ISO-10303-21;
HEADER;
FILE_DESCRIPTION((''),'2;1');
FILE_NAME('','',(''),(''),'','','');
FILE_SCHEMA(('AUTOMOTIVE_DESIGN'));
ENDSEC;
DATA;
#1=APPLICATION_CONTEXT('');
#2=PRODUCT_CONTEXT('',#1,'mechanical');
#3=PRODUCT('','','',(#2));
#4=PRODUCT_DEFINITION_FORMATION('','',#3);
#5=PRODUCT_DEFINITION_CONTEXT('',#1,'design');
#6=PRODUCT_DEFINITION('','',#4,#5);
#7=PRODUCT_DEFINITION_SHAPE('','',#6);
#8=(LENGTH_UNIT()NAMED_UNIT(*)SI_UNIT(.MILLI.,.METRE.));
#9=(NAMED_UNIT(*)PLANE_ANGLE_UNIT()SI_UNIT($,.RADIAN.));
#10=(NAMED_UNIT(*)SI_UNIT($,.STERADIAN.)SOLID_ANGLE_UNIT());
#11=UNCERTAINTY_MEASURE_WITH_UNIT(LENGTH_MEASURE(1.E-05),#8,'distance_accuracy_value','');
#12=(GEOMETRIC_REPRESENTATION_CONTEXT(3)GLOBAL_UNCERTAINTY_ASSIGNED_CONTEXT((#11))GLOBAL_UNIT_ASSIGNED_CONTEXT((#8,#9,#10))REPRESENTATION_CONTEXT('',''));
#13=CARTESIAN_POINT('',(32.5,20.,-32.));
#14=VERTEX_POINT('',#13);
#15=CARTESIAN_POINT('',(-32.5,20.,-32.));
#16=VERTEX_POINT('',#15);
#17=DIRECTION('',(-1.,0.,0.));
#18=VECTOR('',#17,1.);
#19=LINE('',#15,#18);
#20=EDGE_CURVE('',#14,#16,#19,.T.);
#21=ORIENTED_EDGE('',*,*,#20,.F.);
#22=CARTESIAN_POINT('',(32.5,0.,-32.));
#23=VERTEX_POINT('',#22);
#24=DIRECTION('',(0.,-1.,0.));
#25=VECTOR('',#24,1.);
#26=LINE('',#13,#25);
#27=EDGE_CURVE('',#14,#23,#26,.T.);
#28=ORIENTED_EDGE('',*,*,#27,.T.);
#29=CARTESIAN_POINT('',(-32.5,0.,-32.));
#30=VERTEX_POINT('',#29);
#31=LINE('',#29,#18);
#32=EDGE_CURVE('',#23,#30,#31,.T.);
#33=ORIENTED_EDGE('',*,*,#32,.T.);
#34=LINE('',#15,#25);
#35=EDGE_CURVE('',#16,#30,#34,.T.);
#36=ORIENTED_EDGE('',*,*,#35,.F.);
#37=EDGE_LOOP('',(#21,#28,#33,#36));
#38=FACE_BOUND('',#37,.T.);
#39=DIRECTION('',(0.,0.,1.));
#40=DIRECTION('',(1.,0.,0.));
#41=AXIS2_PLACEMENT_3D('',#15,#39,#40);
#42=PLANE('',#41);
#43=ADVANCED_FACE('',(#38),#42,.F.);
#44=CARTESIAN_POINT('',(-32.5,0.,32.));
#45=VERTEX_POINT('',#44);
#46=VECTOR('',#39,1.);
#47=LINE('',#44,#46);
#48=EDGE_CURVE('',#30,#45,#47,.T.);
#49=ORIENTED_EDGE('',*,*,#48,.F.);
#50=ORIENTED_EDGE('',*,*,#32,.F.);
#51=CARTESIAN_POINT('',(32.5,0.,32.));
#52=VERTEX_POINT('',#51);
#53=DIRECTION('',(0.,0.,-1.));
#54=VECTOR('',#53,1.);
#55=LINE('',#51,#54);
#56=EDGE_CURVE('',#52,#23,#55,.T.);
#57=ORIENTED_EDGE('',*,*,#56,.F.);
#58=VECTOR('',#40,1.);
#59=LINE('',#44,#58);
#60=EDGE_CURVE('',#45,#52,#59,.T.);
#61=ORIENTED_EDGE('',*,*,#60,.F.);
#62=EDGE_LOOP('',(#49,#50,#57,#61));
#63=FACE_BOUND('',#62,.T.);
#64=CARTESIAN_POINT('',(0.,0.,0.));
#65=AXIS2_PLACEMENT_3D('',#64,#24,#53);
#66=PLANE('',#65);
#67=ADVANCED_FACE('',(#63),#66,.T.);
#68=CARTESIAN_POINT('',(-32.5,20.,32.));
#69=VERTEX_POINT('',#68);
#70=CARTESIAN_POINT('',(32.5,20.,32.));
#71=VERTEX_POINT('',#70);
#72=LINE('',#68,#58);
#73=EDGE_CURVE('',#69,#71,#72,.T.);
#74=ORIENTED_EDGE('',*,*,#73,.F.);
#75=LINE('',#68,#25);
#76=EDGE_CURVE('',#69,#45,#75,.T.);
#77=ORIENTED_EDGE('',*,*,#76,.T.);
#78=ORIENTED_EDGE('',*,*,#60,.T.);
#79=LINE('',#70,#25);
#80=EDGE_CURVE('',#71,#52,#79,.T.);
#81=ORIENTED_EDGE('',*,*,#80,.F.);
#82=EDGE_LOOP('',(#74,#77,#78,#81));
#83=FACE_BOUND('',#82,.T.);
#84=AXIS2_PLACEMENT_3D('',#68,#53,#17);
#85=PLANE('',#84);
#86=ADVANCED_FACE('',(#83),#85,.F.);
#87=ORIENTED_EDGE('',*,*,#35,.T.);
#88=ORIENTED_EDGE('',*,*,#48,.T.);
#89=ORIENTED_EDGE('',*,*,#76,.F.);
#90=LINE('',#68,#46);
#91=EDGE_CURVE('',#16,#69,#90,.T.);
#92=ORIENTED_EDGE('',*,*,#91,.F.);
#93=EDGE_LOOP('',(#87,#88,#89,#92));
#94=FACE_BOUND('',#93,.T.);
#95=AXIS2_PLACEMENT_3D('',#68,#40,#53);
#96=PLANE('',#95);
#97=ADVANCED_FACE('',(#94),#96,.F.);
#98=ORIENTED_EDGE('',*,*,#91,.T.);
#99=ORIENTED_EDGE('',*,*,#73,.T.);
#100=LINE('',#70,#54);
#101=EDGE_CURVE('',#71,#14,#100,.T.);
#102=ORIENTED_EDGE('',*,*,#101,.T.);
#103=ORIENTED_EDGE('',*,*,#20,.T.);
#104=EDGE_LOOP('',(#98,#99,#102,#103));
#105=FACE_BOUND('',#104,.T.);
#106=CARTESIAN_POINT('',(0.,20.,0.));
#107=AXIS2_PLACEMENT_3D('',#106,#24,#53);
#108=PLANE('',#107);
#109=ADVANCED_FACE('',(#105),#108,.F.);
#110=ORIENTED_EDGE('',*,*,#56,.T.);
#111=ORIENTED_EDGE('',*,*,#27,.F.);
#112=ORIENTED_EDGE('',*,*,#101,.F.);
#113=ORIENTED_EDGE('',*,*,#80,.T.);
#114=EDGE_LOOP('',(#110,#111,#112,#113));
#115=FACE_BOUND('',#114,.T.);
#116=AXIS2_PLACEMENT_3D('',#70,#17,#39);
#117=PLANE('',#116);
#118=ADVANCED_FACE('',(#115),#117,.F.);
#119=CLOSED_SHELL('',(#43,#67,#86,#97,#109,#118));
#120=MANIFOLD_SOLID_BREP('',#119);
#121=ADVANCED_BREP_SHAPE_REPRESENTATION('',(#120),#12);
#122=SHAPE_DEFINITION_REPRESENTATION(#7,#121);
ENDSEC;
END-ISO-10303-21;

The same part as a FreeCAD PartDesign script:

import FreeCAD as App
import Part
import Sketcher

V = App.Vector
Q = App.Units.Quantity


def add_polygon(sketch, points):
    """Adds a closed chain of lines whose ends are joined by coincident constraints."""
    first, n = sketch.GeometryCount, len(points)
    for a, b in zip(points, points[1:] + points[:1]):
        sketch.addGeometry(Part.LineSegment(App.Vector(*a, 0), App.Vector(*b, 0)), False)
    for i in range(n):
        sketch.addConstraint(Sketcher.Constraint("Coincident", first + i, 2, first + (i + 1) % n, 1))

doc = App.newDocument("Part")
params = doc.addObject("Spreadsheet::Sheet", "Params")
for row, (alias, value) in enumerate([
    ("sketch1_width", "65 mm"),
    ("sketch1_height", "64 mm"),
    ("pad1_length", "20 mm"),
], start=1):
    params.set(f"A{row}", alias)
    params.set(f"B{row}", "=" + value)
    params.setAlias(f"B{row}", alias)

body = doc.addObject("PartDesign::Body", "Body")

# Sketch on XZ plane
sketch1 = doc.addObject("Sketcher::SketchObject", "Sketch")
body.addObject(sketch1)
sketch1.AttachmentSupport = (doc.XZ_Plane, [""])
sketch1.MapMode = "FlatFace"
add_polygon(sketch1, [(-32, -32), (-32, 32), (32, 32), (32, -32)])  # lines 0-3
sketch1.addConstraint(Sketcher.Constraint("Vertical", 0))
sketch1.addConstraint(Sketcher.Constraint("Horizontal", 1))
sketch1.addConstraint(Sketcher.Constraint("Vertical", 2))
sketch1.addConstraint(Sketcher.Constraint("Horizontal", 3))
sketch1.addConstraint(Sketcher.Constraint("Symmetric", 0, 2, 2, 2, -1, 1))
sketch1.addConstraint(Sketcher.Constraint("DistanceX", 1, 1, 1, 2, Q("65 mm")))
sketch1.addConstraint(Sketcher.Constraint("DistanceY", 0, 1, 0, 2, Q("64 mm")))
sketch1.setExpression("Constraints[9]", "Params.sketch1_width")
sketch1.setExpression("Constraints[10]", "Params.sketch1_height")
pad1 = doc.addObject("PartDesign::Pad", "Pad")
body.addObject(pad1)
pad1.Profile = sketch1
pad1.setExpression("Length", "Params.pad1_length")
pad1.Reversed = True

doc.recompute()
